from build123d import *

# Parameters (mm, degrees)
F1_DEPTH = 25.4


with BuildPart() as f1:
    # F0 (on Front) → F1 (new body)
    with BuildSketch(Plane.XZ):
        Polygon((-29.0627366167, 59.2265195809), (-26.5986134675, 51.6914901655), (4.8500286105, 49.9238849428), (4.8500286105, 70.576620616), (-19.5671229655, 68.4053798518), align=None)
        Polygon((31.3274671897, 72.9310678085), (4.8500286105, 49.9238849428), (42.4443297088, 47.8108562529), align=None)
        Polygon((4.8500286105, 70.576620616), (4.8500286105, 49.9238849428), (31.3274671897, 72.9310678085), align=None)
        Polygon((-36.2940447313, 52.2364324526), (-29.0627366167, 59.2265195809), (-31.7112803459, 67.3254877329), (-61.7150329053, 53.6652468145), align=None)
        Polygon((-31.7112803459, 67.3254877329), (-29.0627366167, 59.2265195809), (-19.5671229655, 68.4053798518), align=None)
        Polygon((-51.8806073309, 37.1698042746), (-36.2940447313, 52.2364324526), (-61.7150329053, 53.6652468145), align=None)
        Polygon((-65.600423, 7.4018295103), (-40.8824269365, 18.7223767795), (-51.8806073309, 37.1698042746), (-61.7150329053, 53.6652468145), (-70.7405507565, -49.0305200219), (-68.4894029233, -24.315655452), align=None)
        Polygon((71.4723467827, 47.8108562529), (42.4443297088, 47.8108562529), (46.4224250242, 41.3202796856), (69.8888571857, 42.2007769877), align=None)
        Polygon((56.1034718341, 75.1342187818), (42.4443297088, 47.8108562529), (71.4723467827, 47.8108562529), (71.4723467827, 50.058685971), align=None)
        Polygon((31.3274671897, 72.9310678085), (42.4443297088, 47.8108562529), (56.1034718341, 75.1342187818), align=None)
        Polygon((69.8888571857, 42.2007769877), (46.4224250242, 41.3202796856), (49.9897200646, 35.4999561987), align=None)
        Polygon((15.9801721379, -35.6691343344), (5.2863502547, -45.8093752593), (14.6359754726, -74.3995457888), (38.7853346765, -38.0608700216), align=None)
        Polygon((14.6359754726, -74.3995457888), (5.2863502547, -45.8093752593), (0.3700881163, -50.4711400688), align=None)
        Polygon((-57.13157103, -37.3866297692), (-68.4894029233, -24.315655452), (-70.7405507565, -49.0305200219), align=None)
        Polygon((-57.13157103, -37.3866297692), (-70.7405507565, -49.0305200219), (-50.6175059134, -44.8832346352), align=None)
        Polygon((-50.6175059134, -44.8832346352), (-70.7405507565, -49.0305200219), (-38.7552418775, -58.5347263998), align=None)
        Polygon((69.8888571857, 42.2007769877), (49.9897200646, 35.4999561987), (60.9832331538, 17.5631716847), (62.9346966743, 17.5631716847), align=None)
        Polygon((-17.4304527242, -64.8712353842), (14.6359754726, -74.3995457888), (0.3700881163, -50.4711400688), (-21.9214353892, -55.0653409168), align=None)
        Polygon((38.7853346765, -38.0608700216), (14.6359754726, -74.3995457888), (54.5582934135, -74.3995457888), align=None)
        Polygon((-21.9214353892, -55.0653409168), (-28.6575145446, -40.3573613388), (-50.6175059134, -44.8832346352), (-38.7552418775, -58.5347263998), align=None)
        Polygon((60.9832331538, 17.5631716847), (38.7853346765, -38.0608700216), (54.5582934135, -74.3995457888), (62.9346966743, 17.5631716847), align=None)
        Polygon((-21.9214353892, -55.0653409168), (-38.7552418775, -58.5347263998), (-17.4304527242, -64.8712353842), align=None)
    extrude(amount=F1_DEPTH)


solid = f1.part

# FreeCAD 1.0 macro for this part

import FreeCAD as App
import Part
import Sketcher
from FreeCAD import Vector
Q = App.Units.Quantity


def add_polygon(sketch, points):
    """Adds a closed chain of lines whose ends are joined by coincident constraints."""
    first, n = sketch.GeometryCount, len(points)
    for a, b in zip(points, points[1:] + points[:1]):
        sketch.addGeometry(Part.LineSegment(App.Vector(*a, 0), App.Vector(*b, 0)), False)
    for i in range(n):
        sketch.addConstraint(Sketcher.Constraint("Coincident", first + i, 2, first + (i + 1) % n, 1))

doc = App.newDocument("Part")
body = doc.addObject("PartDesign::Body", "Body")

# Sketch on XZ plane
sketch1 = body.newObject("Sketcher::SketchObject", "Sketch")
sketch1.AttachmentSupport = (doc.getObject("XZ_Plane"), [""])
sketch1.MapMode = "FlatFace"
add_polygon(sketch1, [(-70.740551, -49.03052), (-38.755242, -58.534726), (-17.430453, -64.871235), (14.635975, -74.399546), (54.558293, -74.399546), (62.934697, 17.563172), (69.888857, 42.200777), (71.472347, 47.810856), (71.472347, 50.058686), (56.103472, 75.134219), (4.850029, 70.576621), (-19.567123, 68.40538), (-31.71128, 67.325488), (-61.715033, 53.665247)])  # lines 0-13
add_polygon(sketch1, [(0.370088, -50.47114), (-21.921435, -55.065341), (-28.657515, -40.357361), (-50.617506, -44.883235), (-57.131571, -37.38663), (-68.489403, -24.315655), (-65.600423, 7.40183), (-40.882427, 18.722377), (-51.880607, 37.169804), (-36.294045, 52.236432), (-29.062737, 59.22652), (-26.598613, 51.69149), (4.850029, 49.923885), (42.44433, 47.810856), (46.422425, 41.32028), (49.98972, 35.499956), (60.983233, 17.563172), (38.785335, -38.06087), (15.980172, -35.669134), (5.28635, -45.809375)])  # lines 14-33
sketch1.addConstraint([
    Sketcher.Constraint("Horizontal", 3),
    Sketcher.Constraint("Vertical", 7),
    Sketcher.Constraint("Parallel", 0, 1),
    Sketcher.Constraint("Parallel", 1, 2),
    Sketcher.Constraint("Parallel", 5, 6),
    Sketcher.Constraint("Parallel", 9, 10),
    Sketcher.Constraint("Parallel", 10, 11),
    Sketcher.Constraint("Parallel", 14, 16),
    Sketcher.Constraint("Parallel", 17, 18),
    Sketcher.Constraint("Parallel", 4, 19),
    Sketcher.Constraint("Perpendicular", 15, 20),
    Sketcher.Constraint("Parallel", 22, 23),
    Sketcher.Constraint("Parallel", 25, 26),
    Sketcher.Constraint("Parallel", 8, 27),
    Sketcher.Constraint("Parallel", 27, 28),
    Sketcher.Constraint("Parallel", 28, 29),
    Sketcher.Constraint("Parallel", 32, 33),
    Sketcher.Constraint("Horizontal", 6, 2, 26, 2),
    Sketcher.Constraint("Horizontal", 4, 2, 29, 2),
    Sketcher.Constraint("Vertical", 9, 2, 25, 2),
    Sketcher.Constraint("DistanceX", 15, 2, 14, 2, Q("0.2652 in")),
    Sketcher.Constraint("DistanceY", 25, 2, 9, 2, Q("0.8130998 in")),
    Sketcher.Constraint("Distance", 0, Q("33.367498 mm")),
    Sketcher.Constraint("Distance", 18, Q("17.316198 mm")),
    Sketcher.Constraint("DistanceY", 7, 1, 7, 2, Q("2.24783 mm")),
    Sketcher.Constraint("DistanceY", 0, 2, 4, 2, Q("76.097898 mm")),
    Sketcher.Constraint("DistanceX", 0, 2, 5, 2, Q("108.644099 mm")),
    Sketcher.Constraint("DistanceX", 1, 2, 6, 2, Q("88.9028 mm")),
    Sketcher.Constraint("DistanceY", 9, 2, 8, 2, Q("4.557598 mm")),
    Sketcher.Constraint("DistanceY", 7, 2, 11, 2, Q("17.266802 mm")),
    Sketcher.Constraint("DistanceX", 13, 2, 1, 2, Q("53.310098 mm")),
    Sketcher.Constraint("DistanceY", 1, 2, 16, 2, Q("19.988001 mm")),
    Sketcher.Constraint("DistanceY", 28, 2, 26, 2, Q("12.3109 mm")),
    Sketcher.Constraint("DistanceX", 30, 2, 29, 2, Q("22.197898 mm")),
    Sketcher.Constraint("DistanceY", 1, 2, 31, 2, Q("29.202101 mm")),
    Sketcher.Constraint("DistanceY", 14, 2, 33, 2, Q("4.594201 mm")),
    Sketcher.Constraint("Distance", 4, Q("92.343411 mm")),
    Sketcher.Constraint("Distance", 8, Q("29.410622 mm")),
    Sketcher.Constraint("Distance", 9, Q("51.455681 mm")),
    Sketcher.Constraint("Distance", 17, Q("9.931371 mm")),
    Sketcher.Constraint("Distance", 20, Q("27.187021 mm")),
    Sketcher.Constraint("Distance", 21, Q("21.47714 mm")),
    Sketcher.Constraint("Distance", 23, Q("10.057491 mm")),
    Sketcher.Constraint("Distance", 24, Q("7.927709 mm")),
    Sketcher.Constraint("Distance", 28, Q("6.826548 mm")),
    Sketcher.Constraint("Distance", 31, Q("22.930239 mm")),
    Sketcher.Constraint("Distance", 33, Q("6.775078 mm")),
    Sketcher.Constraint("DistanceX", 3, 1, 3, 2, Q("39.922318 mm")),
    Sketcher.Constraint("DistanceX", 0, 2, -1, 1, Q("38.755242 mm")),
    Sketcher.Constraint("DistanceY", -1, 1, 4, 2, Q("17.563172 mm")),
    Sketcher.Constraint("DistanceX", -1, 1, 8, 2, Q("56.103472 mm")),
    Sketcher.Constraint("DistanceY", -1, 1, 8, 2, Q("75.134219 mm")),
    Sketcher.Constraint("DistanceY", -1, 1, 10, 2, Q("68.40538 mm")),
    Sketcher.Constraint("DistanceX", 11, 2, -1, 1, Q("31.71128 mm")),
    Sketcher.Constraint("DistanceY", 14, 2, -1, 1, Q("55.065341 mm")),
    Sketcher.Constraint("DistanceY", 15, 2, -1, 1, Q("40.357361 mm")),
    Sketcher.Constraint("DistanceX", 17, 2, -1, 1, Q("57.131571 mm")),
    Sketcher.Constraint("DistanceY", 17, 2, -1, 1, Q("37.38663 mm")),
    Sketcher.Constraint("DistanceY", -1, 1, 19, 2, Q("7.40183 mm")),
    Sketcher.Constraint("DistanceY", -1, 1, 23, 2, Q("59.22652 mm")),
    Sketcher.Constraint("DistanceY", -1, 1, 24, 2, Q("51.69149 mm")),
    Sketcher.Constraint("DistanceX", -1, 1, 26, 2, Q("42.44433 mm")),
    Sketcher.Constraint("DistanceY", 30, 2, -1, 1, Q("38.06087 mm")),
    Sketcher.Constraint("DistanceX", -1, 1, 32, 2, Q("5.28635 mm")),
    Sketcher.Constraint("DistanceX", 1, 2, 2, 2, Q("32.066428 mm")),
    Sketcher.Constraint("DistanceY", 12, 2, 11, 2, Q("13.660241 mm")),
    Sketcher.Constraint("DistanceX", 12, 2, 10, 2, Q("42.14791 mm")),
    Sketcher.Constraint("DistanceX", 21, 2, 20, 2, Q("10.99818 mm")),
])
pad1 = body.newObject("PartDesign::Pad", "Pad")
pad1.Profile = sketch1
pad1.Length = Q("1 in")

doc.recompute()
